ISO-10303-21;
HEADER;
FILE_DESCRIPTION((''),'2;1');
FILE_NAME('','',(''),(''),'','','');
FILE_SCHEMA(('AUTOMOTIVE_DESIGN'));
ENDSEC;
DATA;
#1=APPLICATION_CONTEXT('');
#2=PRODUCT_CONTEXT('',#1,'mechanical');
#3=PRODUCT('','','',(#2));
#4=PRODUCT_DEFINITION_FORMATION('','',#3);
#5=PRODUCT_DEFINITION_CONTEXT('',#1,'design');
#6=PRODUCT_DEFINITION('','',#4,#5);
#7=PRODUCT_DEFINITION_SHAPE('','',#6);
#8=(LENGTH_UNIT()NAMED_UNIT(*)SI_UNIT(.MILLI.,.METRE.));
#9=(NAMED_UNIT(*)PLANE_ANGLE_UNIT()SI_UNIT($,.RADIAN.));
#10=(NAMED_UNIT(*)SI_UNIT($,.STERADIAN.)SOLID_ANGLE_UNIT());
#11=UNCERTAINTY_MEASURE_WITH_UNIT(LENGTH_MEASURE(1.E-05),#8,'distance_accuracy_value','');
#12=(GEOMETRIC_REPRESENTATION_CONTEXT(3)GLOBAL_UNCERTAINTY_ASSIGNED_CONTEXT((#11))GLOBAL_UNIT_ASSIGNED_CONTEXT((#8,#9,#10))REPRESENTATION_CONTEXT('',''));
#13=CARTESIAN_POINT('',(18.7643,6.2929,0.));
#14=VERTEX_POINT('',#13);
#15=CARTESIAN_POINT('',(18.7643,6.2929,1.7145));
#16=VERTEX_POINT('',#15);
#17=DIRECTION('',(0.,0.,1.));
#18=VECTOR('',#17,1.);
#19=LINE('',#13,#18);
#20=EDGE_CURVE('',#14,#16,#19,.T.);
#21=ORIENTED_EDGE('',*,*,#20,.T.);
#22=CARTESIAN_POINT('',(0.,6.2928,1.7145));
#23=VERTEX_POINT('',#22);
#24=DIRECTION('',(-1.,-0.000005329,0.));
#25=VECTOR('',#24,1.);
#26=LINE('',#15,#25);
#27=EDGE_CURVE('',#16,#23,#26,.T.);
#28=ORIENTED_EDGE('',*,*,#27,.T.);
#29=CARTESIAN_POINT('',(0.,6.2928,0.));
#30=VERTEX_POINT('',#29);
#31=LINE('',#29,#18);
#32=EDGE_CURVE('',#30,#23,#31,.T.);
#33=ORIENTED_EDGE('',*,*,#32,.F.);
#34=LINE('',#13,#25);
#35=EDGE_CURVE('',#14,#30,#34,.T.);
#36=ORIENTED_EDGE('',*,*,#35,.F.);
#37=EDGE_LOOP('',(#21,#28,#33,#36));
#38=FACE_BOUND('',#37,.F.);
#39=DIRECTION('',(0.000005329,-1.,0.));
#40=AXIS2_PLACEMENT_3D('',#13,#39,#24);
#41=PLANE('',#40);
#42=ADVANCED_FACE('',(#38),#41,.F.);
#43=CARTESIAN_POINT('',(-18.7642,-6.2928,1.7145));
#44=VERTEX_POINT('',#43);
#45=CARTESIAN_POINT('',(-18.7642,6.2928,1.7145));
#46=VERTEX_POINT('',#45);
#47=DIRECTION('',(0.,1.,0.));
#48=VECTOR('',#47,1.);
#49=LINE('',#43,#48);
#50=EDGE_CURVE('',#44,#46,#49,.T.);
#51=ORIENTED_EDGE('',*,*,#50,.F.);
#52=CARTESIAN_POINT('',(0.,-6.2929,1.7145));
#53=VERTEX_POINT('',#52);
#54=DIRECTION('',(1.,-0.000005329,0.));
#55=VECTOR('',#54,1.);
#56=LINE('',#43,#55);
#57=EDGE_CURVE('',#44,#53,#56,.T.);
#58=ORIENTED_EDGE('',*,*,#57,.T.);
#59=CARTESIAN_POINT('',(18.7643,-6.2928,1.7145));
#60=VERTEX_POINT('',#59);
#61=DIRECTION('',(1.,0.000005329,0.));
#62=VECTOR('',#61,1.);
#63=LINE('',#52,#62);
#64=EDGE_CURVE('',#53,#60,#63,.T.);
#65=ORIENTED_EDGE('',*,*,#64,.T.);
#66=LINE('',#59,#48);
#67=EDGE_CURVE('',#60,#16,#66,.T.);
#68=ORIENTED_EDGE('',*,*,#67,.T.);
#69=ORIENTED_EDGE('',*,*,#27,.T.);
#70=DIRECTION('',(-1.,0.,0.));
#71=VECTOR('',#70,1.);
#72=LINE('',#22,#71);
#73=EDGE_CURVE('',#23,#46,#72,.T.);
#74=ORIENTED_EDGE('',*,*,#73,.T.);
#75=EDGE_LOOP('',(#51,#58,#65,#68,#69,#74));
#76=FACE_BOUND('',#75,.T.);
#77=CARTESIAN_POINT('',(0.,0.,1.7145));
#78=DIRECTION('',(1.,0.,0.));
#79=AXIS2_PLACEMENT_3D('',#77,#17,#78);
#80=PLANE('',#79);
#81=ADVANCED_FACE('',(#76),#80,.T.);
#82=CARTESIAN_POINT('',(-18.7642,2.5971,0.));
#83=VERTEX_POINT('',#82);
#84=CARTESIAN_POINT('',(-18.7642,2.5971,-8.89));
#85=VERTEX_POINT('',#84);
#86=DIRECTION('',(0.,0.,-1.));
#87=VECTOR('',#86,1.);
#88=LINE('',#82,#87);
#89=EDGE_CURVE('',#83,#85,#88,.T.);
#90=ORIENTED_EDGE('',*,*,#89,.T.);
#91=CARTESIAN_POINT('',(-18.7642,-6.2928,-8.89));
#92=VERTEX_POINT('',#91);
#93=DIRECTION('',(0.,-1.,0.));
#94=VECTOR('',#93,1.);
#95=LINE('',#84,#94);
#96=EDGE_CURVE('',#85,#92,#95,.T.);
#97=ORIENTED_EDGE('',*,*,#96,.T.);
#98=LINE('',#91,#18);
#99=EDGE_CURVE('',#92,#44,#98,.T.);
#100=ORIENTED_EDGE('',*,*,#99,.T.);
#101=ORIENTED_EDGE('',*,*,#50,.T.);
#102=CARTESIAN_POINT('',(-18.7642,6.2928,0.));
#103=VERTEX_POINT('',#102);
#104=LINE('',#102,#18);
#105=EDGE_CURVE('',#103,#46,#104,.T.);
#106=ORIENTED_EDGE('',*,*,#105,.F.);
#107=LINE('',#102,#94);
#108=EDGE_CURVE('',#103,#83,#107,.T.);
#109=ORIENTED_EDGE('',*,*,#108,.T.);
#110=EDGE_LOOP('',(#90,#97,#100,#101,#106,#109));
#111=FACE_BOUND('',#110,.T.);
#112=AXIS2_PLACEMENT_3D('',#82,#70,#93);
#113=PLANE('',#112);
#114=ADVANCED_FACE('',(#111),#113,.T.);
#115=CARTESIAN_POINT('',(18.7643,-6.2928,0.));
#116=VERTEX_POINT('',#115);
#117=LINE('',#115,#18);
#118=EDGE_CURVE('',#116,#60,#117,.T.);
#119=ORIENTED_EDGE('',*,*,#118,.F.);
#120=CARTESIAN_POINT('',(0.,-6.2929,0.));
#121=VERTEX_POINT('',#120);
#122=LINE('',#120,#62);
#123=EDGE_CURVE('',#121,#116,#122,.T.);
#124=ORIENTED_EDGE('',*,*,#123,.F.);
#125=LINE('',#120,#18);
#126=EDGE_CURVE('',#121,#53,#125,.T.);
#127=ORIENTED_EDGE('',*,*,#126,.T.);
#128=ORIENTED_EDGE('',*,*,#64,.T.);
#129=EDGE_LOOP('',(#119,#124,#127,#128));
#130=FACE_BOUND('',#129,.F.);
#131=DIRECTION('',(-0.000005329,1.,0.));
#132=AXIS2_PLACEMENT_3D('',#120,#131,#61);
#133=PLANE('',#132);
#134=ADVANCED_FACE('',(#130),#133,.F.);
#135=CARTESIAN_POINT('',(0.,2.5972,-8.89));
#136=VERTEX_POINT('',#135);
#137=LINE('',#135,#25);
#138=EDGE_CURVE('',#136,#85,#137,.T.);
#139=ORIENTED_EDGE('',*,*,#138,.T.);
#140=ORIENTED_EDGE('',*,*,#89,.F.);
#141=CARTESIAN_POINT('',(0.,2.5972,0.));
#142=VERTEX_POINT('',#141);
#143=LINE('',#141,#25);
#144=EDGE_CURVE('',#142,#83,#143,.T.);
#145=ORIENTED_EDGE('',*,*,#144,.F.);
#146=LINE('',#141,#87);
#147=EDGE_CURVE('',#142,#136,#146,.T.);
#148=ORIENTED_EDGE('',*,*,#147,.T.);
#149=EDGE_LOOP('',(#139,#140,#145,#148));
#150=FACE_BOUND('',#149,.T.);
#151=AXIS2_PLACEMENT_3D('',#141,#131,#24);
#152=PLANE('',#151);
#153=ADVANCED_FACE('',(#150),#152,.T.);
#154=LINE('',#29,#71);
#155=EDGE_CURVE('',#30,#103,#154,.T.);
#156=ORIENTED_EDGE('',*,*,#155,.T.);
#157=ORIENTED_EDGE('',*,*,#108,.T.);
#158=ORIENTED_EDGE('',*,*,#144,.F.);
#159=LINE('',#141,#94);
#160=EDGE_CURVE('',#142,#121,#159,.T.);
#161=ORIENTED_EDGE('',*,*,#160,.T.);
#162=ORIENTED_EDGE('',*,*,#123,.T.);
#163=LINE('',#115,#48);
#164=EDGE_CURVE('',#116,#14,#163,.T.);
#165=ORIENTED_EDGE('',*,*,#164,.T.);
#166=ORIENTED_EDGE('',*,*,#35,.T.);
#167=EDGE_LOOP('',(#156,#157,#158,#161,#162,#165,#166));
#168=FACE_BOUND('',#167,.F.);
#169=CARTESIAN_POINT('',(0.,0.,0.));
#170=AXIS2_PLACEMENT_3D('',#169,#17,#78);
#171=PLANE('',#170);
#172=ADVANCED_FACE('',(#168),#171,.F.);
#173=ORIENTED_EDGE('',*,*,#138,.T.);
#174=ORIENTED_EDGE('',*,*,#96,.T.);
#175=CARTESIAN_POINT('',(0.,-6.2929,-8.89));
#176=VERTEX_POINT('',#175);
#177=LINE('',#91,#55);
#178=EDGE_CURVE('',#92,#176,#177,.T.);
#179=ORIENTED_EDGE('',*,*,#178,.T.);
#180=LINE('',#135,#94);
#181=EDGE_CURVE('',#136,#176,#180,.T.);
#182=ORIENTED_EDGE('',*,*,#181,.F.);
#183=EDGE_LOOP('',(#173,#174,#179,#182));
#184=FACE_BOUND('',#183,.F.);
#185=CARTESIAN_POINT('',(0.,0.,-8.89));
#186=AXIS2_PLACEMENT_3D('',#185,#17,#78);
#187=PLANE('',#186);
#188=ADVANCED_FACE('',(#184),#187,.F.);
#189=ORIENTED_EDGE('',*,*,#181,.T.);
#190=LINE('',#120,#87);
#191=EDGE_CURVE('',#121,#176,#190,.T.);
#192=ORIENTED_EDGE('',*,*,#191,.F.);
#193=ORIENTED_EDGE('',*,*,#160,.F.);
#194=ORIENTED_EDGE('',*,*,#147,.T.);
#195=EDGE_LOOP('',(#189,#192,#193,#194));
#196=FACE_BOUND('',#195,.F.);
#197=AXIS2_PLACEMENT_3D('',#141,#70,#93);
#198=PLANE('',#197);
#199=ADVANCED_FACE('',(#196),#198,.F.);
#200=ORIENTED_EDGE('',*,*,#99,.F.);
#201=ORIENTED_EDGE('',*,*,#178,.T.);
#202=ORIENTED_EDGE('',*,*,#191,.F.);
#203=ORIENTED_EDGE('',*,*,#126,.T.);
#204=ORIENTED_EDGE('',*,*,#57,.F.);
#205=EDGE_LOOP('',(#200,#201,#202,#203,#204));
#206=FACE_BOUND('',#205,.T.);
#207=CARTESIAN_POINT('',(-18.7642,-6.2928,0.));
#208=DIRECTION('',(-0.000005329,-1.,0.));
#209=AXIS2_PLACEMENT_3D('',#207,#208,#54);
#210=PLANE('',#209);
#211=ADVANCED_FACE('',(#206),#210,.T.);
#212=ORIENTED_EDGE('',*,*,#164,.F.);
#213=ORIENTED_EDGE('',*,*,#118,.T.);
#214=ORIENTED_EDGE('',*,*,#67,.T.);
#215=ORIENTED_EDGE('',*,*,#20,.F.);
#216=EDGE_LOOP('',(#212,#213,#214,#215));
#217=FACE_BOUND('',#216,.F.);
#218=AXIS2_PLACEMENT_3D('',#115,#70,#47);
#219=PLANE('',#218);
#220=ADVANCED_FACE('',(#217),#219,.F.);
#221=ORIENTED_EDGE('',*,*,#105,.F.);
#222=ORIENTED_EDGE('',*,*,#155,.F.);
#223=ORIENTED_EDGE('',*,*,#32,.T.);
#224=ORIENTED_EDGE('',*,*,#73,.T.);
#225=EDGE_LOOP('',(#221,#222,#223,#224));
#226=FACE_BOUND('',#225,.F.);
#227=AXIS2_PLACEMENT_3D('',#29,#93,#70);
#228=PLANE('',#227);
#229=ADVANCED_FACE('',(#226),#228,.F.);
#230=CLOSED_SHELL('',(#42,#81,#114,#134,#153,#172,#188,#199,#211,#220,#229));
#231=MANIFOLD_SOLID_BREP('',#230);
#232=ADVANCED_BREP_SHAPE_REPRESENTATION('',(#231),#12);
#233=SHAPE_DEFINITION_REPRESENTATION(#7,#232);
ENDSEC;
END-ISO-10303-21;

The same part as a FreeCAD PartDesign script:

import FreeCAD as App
import Part
import Sketcher
from FreeCAD import Vector
Q = App.Units.Quantity

doc = App.newDocument("Part")
body = doc.addObject("PartDesign::Body", "Body")

# Sketch on XY plane
sketch1 = body.newObject("Sketcher::SketchObject", "Sketch")
sketch1.AttachmentSupport = (doc.getObject("XY_Plane"), [""])
sketch1.MapMode = "FlatFace"
sketch1.addGeometry(Part.LineSegment(Vector(-19, -6, 0), Vector(0, -6, 0)), False)
sketch1.addGeometry(Part.LineSegment(Vector(0, -6, 0), Vector(19, -6, 0)), False)
sketch1.addGeometry(Part.LineSegment(Vector(19, -6, 0), Vector(19, 6, 0)), False)
sketch1.addGeometry(Part.LineSegment(Vector(19, 6, 0), Vector(0, 6, 0)), False)
sketch1.addGeometry(Part.LineSegment(Vector(0, 6, 0), Vector(-19, 6, 0)), False)
sketch1.addGeometry(Part.LineSegment(Vector(-19, 6, 0), Vector(-19, -6, 0)), False)
sketch1.addConstraint(Sketcher.Constraint("Coincident", 0, 2, 1, 1))
sketch1.addConstraint(Sketcher.Constraint("Coincident", 1, 2, 2, 1))
sketch1.addConstraint(Sketcher.Constraint("Coincident", 2, 2, 3, 1))
sketch1.addConstraint(Sketcher.Constraint("Coincident", 3, 2, 4, 1))
sketch1.addConstraint(Sketcher.Constraint("Coincident", 4, 2, 5, 1))
sketch1.addConstraint(Sketcher.Constraint("Coincident", 5, 2, 0, 1))
sketch1.addConstraint(Sketcher.Constraint("Horizontal", 0))
sketch1.addConstraint(Sketcher.Constraint("Horizontal", 1))
sketch1.addConstraint(Sketcher.Constraint("Vertical", 2))
sketch1.addConstraint(Sketcher.Constraint("Horizontal", 3))
sketch1.addConstraint(Sketcher.Constraint("Horizontal", 4))
sketch1.addConstraint(Sketcher.Constraint("Vertical", 5))
sketch1.addConstraint(Sketcher.Constraint("Symmetric", 0, 2, 3, 2, -1, 1))
sketch1.addConstraint(Sketcher.Constraint("PointOnObject", 0, 2, -2))
sketch1.addConstraint(Sketcher.Constraint("Equal", 0, 1))
sketch1.addConstraint(Sketcher.Constraint("DistanceY", 2, 1, 2, 2, Q("0.4955 in")))
sketch1.addConstraint(Sketcher.Constraint("DistanceX", 4, 2, 2, 2, Q("1.4775 in")))
pad1 = body.newObject("PartDesign::Pad", "Pad")
pad1.Profile = sketch1
pad1.Length = Q("0.0675 in")

# Sketch on XY plane
sketch2 = body.newObject("Sketcher::SketchObject", "Sketch001")
sketch2.AttachmentSupport = (doc.getObject("XY_Plane"), [""])
sketch2.MapMode = "FlatFace"
sketch2.addGeometry(Part.LineSegment(Vector(-19, 3, 0), Vector(-19, -6, 0)), False)
sketch2.addGeometry(Part.LineSegment(Vector(-19, -6, 0), Vector(0, -6, 0)), False)
sketch2.addGeometry(Part.LineSegment(Vector(0, -6, 0), Vector(0, 3, 0)), False)
sketch2.addGeometry(Part.LineSegment(Vector(0, 3, 0), Vector(-19, 3, 0)), False)
sketch2.addConstraint(Sketcher.Constraint("Coincident", 0, 2, 1, 1))
sketch2.addConstraint(Sketcher.Constraint("Coincident", 1, 2, 2, 1))
sketch2.addConstraint(Sketcher.Constraint("Coincident", 2, 2, 3, 1))
sketch2.addConstraint(Sketcher.Constraint("Coincident", 3, 2, 0, 1))
sketch2.addConstraint(Sketcher.Constraint("Vertical", 0))
sketch2.addConstraint(Sketcher.Constraint("Horizontal", 1))
sketch2.addConstraint(Sketcher.Constraint("Vertical", 2))
sketch2.addConstraint(Sketcher.Constraint("Horizontal", 3))
sketch2.addConstraint(Sketcher.Constraint("PointOnObject", 1, 2, -2))
sketch2.addConstraint(Sketcher.Constraint("DistanceY", 0, 2, 0, 1, Q("0.35 in")))
sketch2.addConstraint(Sketcher.Constraint("DistanceX", 1, 1, 1, 2, 18.7642))
sketch2.addConstraint(Sketcher.Constraint("DistanceY", 0, 2, -1, 1, 6.2928))
pad2 = body.newObject("PartDesign::Pad", "Pad001")
pad2.Profile = sketch2
pad2.Length = Q("0.35 in")
pad2.Reversed = True

doc.recompute()
